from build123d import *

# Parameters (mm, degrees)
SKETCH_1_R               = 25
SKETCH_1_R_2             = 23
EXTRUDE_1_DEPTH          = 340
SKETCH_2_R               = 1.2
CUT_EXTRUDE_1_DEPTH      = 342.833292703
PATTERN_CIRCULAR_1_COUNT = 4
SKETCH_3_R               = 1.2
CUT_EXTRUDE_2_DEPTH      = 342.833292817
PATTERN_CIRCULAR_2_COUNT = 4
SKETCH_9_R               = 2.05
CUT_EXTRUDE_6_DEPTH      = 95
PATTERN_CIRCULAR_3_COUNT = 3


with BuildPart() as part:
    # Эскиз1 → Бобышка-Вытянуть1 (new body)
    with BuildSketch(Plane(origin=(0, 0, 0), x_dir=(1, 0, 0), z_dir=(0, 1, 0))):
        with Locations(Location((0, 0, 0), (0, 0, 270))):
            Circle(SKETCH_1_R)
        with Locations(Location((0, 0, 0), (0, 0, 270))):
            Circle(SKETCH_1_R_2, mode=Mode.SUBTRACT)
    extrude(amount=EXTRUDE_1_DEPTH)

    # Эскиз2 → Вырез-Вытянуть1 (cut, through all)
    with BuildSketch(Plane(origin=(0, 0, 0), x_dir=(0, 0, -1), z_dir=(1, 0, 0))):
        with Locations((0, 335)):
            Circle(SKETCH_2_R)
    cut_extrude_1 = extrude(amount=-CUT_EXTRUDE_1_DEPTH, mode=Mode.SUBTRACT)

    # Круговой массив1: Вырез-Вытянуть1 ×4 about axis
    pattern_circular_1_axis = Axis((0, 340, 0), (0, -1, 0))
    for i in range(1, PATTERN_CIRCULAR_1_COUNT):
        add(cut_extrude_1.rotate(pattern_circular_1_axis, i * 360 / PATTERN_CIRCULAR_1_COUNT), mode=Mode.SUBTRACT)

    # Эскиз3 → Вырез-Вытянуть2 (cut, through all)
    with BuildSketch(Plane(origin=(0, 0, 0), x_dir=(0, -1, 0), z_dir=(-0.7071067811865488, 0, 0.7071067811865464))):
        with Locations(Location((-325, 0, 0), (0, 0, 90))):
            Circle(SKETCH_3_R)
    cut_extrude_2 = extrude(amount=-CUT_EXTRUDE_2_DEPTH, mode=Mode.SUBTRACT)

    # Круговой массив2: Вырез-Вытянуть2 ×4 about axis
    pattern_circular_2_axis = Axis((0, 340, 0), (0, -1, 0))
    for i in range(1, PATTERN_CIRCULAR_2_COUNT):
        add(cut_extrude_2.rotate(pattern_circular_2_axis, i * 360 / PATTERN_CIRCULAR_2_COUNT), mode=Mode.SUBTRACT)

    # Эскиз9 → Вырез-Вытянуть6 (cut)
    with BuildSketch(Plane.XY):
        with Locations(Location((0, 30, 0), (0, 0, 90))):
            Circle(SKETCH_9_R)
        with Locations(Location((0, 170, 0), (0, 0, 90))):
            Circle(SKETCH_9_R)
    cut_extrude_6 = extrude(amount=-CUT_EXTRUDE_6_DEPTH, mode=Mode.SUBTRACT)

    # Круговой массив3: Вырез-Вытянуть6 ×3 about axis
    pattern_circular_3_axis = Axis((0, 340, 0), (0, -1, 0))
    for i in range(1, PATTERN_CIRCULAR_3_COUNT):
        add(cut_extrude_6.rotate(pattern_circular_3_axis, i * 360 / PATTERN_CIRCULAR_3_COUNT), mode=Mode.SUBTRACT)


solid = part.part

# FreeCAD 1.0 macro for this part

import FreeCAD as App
import Part
import Sketcher
from FreeCAD import Vector

doc = App.newDocument("Part")
body = doc.addObject("PartDesign::Body", "Body")

# Sketch on XZ plane
sketch1 = body.newObject("Sketcher::SketchObject", "Sketch")
sketch1.AttachmentSupport = (doc.getObject("XZ_Plane"), [""])
sketch1.MapMode = "FlatFace"
sketch1.addGeometry(Part.Circle(Vector(0, 0, 0), Vector(0, 0, 1), 25), False)
sketch1.addGeometry(Part.Circle(Vector(0, 0, 0), Vector(0, 0, 1), 23), False)
sketch1.addConstraint(Sketcher.Constraint("Coincident", 0, 3, -1, 1))
sketch1.addConstraint(Sketcher.Constraint("Coincident", 1, 3, -1, 1))
sketch1.addConstraint(Sketcher.Constraint("Diameter", 0, 50.0))
sketch1.addConstraint(Sketcher.Constraint("Diameter", 1, 46.0))
pad1 = body.newObject("PartDesign::Pad", "Pad")
pad1.Profile = sketch1
pad1.Length = 340
pad1.Reversed = True

# Sketch on YZ plane
sketch2 = body.newObject("Sketcher::SketchObject", "Sketch001")
sketch2.AttachmentSupport = (doc.getObject("YZ_Plane"), [""])
sketch2.MapMode = "FlatFace"
sketch2.addGeometry(Part.Circle(Vector(335, 0, 0), Vector(0, 0, 1), 1.2), False)
sketch2.addConstraint(Sketcher.Constraint("PointOnObject", 0, 3, -1))
sketch2.addConstraint(Sketcher.Constraint("Diameter", 0, 2.4))
sketch2.addConstraint(Sketcher.Constraint("DistanceX", -1, 1, 0, 3, 335.0))
pocket1 = body.newObject("PartDesign::Pocket", "Pocket")
pocket1.Profile = sketch2
pocket1.Type = "ThroughAll"
doc.recompute()

polarpattern = body.newObject("PartDesign::PolarPattern", "PolarPattern")
polarpattern.Originals = [pocket1]
polarpattern.Axis = (doc.getObject("Y_Axis"), [""])
polarpattern.Angle = 360
polarpattern.Occurrences = 4
body.Tip = polarpattern

# Sketch on an angled plane
sketch3 = body.newObject("Sketcher::SketchObject", "Sketch002")
sketch3.Placement = App.Placement(Vector(0, 0, 0), App.Rotation(Vector(0, -1, 0), Vector(0.707106781, 0, 0.707106781), Vector(-0.707106781, 0, 0.707106781), "ZXY"))
sketch3.addGeometry(Part.Circle(Vector(-325, 0, 0), Vector(0, 0, 1), 1.2), False)
sketch3.addConstraint(Sketcher.Constraint("PointOnObject", 0, 3, -1))
sketch3.addConstraint(Sketcher.Constraint("Diameter", 0, 2.4))
sketch3.addConstraint(Sketcher.Constraint("DistanceX", 0, 3, -1, 1, 325.0))
pocket2 = body.newObject("PartDesign::Pocket", "Pocket001")
pocket2.Profile = sketch3
pocket2.Type = "ThroughAll"
doc.recompute()

polarpattern2 = body.newObject("PartDesign::PolarPattern", "PolarPattern001")
polarpattern2.Originals = [pocket2]
polarpattern2.Axis = (doc.getObject("Y_Axis"), [""])
polarpattern2.Angle = 360
polarpattern2.Occurrences = 4
body.Tip = polarpattern2

# Sketch on XY plane
sketch4 = body.newObject("Sketcher::SketchObject", "Sketch003")
sketch4.AttachmentSupport = (doc.getObject("XY_Plane"), [""])
sketch4.MapMode = "FlatFace"
sketch4.addGeometry(Part.Circle(Vector(0, 30, 0), Vector(0, 0, 1), 2), False)
sketch4.addGeometry(Part.Circle(Vector(0, 170, 0), Vector(0, 0, 1), 2), False)
sketch4.addConstraint(Sketcher.Constraint("Equal", 0, 1))
sketch4.addConstraint(Sketcher.Constraint("PointOnObject", 0, 3, -2))
sketch4.addConstraint(Sketcher.Constraint("PointOnObject", 1, 3, -2))
sketch4.addConstraint(Sketcher.Constraint("Diameter", 0, 4.1))
sketch4.addConstraint(Sketcher.Constraint("DistanceY", -1, 1, 0, 3, 30.0))
sketch4.addConstraint(Sketcher.Constraint("DistanceY", -1, 1, 1, 3, 170.0))
pocket3 = body.newObject("PartDesign::Pocket", "Pocket002")
pocket3.Profile = sketch4
pocket3.Length = 95
doc.recompute()

polarpattern3 = body.newObject("PartDesign::PolarPattern", "PolarPattern002")
polarpattern3.Originals = [pocket3]
polarpattern3.Axis = (doc.getObject("Y_Axis"), [""])
polarpattern3.Angle = 360
polarpattern3.Occurrences = 3
body.Tip = polarpattern3

doc.recompute()
